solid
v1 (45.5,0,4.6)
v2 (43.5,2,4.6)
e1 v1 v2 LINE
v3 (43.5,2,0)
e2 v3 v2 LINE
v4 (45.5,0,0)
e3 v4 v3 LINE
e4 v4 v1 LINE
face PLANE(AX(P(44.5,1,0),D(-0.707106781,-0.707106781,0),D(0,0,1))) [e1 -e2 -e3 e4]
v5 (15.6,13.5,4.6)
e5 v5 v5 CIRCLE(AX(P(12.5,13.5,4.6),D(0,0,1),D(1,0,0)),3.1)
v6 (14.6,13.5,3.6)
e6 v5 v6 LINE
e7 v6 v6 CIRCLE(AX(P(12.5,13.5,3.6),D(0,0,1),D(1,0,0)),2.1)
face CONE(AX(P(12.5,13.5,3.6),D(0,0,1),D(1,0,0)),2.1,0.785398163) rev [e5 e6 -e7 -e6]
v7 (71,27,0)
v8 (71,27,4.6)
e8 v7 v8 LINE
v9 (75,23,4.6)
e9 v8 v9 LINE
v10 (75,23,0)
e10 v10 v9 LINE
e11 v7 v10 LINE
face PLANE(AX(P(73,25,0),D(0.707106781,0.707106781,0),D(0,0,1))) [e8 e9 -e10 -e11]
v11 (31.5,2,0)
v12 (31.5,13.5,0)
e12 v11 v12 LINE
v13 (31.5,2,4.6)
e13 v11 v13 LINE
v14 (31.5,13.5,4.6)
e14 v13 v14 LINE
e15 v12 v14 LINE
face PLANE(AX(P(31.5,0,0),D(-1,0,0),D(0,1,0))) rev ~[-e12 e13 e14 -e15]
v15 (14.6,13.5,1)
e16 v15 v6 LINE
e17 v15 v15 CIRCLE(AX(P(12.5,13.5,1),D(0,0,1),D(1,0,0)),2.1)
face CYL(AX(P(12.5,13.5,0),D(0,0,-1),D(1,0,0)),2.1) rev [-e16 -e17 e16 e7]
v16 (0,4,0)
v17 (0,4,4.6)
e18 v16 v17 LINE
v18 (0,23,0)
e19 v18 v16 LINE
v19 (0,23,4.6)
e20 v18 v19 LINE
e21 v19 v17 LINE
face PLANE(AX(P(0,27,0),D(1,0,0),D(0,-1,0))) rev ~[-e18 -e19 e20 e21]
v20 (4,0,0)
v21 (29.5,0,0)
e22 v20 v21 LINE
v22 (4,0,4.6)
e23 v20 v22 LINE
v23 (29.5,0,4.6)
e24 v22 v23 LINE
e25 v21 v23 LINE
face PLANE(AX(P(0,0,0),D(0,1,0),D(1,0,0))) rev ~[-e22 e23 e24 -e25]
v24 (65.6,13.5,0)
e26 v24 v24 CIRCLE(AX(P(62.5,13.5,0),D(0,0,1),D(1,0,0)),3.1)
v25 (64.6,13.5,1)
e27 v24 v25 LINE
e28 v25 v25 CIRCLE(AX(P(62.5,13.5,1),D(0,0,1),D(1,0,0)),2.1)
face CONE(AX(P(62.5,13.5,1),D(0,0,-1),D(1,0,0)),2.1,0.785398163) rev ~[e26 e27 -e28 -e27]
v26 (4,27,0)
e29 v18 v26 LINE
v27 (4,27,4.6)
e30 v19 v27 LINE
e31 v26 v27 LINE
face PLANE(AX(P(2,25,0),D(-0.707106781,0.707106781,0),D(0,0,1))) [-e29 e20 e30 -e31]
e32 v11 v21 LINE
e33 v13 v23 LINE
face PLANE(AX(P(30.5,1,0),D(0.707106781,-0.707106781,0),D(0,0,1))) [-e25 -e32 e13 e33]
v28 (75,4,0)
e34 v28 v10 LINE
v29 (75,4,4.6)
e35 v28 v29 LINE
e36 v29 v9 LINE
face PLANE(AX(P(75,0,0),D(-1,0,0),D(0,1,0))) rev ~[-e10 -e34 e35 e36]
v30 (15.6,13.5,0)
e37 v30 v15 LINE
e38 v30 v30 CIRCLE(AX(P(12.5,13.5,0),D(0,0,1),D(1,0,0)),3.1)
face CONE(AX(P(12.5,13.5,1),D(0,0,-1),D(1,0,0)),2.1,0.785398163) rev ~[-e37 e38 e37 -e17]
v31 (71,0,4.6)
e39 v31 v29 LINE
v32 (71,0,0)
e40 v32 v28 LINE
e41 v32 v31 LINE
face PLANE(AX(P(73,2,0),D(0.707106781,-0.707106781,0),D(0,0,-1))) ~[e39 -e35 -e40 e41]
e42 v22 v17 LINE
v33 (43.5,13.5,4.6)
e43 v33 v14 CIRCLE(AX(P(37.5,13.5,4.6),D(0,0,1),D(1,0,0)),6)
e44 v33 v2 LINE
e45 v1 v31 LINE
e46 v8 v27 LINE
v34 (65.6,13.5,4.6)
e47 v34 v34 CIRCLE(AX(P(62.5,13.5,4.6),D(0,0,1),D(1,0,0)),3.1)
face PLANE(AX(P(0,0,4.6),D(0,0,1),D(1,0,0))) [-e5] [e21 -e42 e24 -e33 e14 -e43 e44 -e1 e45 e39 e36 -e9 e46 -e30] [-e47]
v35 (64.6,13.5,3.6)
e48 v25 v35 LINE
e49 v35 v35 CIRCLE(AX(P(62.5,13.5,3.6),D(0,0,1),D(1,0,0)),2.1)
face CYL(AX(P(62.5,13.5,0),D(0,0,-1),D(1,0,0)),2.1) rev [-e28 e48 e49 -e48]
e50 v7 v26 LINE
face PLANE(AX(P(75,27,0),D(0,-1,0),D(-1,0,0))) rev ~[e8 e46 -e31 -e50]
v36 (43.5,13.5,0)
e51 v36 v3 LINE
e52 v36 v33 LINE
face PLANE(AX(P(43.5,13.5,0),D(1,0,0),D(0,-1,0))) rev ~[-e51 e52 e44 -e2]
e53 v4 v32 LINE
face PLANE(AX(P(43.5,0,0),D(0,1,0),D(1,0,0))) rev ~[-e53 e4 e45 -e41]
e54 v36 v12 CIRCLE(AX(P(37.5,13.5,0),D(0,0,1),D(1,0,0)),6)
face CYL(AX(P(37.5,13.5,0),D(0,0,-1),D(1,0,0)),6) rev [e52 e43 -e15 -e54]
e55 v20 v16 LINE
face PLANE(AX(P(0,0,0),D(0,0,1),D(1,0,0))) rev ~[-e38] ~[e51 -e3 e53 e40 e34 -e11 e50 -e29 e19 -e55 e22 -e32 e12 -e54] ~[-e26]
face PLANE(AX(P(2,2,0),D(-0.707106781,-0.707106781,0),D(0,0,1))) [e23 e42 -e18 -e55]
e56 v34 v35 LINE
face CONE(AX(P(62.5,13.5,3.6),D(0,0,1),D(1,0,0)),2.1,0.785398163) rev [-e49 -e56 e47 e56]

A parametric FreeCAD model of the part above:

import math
import FreeCAD as App
import Part
import Sketcher

V = App.Vector


def edges_at(feature, points):
    """Names of the edges that pass closest to the given points."""
    edges = feature.Shape.Edges
    near = lambda p: min(range(len(edges)), key=lambda i: edges[i].distToShape(Part.Vertex(*p))[0])
    return sorted({f"Edge{near(p) + 1}" for p in points})

doc = App.newDocument("Part")
body = doc.addObject("PartDesign::Body", "Body")

# Sketch on XY plane
sketch1 = doc.addObject("Sketcher::SketchObject", "Sketch")
body.addObject(sketch1)
sketch1.AttachmentSupport = (doc.XY_Plane, [""])
sketch1.MapMode = "FlatFace"
sketch1.addGeometry(Part.LineSegment(V(43.5, 0, 0), V(75, 0, 0)), False)
sketch1.addGeometry(Part.LineSegment(V(75, 0, 0), V(75, 27, 0)), False)
sketch1.addGeometry(Part.LineSegment(V(75, 27, 0), V(0, 27, 0)), False)
sketch1.addGeometry(Part.LineSegment(V(0, 27, 0), V(0, 0, 0)), False)
sketch1.addGeometry(Part.LineSegment(V(0, 0, 0), V(31.5, 0, 0)), False)
sketch1.addGeometry(Part.LineSegment(V(31.5, 0, 0), V(31.5, 13.5, 0)), False)
sketch1.addGeometry(Part.ArcOfCircle(Part.Circle(V(37.5, 13.5, 0), V(0, 0, 1), 6), math.radians(0), math.radians(180)), False)
sketch1.addGeometry(Part.LineSegment(V(43.5, 13.5, 0), V(43.5, 0, 0)), False)
sketch1.addGeometry(Part.Circle(V(12.5, 13.5, 0), V(0, 0, 1), 2.1), False)
sketch1.addGeometry(Part.Circle(V(62.5, 13.5, 0), V(0, 0, 1), 2.1), False)
sketch1.addConstraint(Sketcher.Constraint("Coincident", 0, 2, 1, 1))
sketch1.addConstraint(Sketcher.Constraint("Coincident", 1, 2, 2, 1))
sketch1.addConstraint(Sketcher.Constraint("Coincident", 2, 2, 3, 1))
sketch1.addConstraint(Sketcher.Constraint("Coincident", 3, 2, 4, 1))
sketch1.addConstraint(Sketcher.Constraint("Coincident", 4, 2, 5, 1))
sketch1.addConstraint(Sketcher.Constraint("Tangent", 5, 2, 6, 2))
sketch1.addConstraint(Sketcher.Constraint("Tangent", 6, 1, 7, 1))
sketch1.addConstraint(Sketcher.Constraint("Coincident", 7, 2, 0, 1))
sketch1.addConstraint(Sketcher.Constraint("Horizontal", 0))
sketch1.addConstraint(Sketcher.Constraint("Vertical", 1))
sketch1.addConstraint(Sketcher.Constraint("Horizontal", 2))
sketch1.addConstraint(Sketcher.Constraint("Vertical", 3))
sketch1.addConstraint(Sketcher.Constraint("Horizontal", 4))
sketch1.addConstraint(Sketcher.Constraint("Vertical", 5))
sketch1.addConstraint(Sketcher.Constraint("Vertical", 7))
sketch1.addConstraint(Sketcher.Constraint("Coincident", 3, 2, -1, 1))
sketch1.addConstraint(Sketcher.Constraint("Equal", 8, 9))
sketch1.addConstraint(Sketcher.Constraint("PointOnObject", 0, 2, -1))
sketch1.addConstraint(Sketcher.Constraint("Horizontal", 6, 3, 8, 3))
sketch1.addConstraint(Sketcher.Constraint("Horizontal", 8, 3, 9, 3))
sketch1.addConstraint(Sketcher.Constraint("Equal", 0, 4))
sketch1.addConstraint(Sketcher.Constraint("Radius", 6, 6.0))
sketch1.addConstraint(Sketcher.Constraint("Diameter", 8, 4.2))
sketch1.addConstraint(Sketcher.Constraint("DistanceX", 2, 2, 2, 1, 75.0))
sketch1.addConstraint(Sketcher.Constraint("DistanceY", 5, 1, 5, 2, 13.5))
sketch1.addConstraint(Sketcher.Constraint("DistanceX", 8, 3, 6, 3, 25.0))
sketch1.addConstraint(Sketcher.Constraint("DistanceX", 6, 3, 9, 3, 25.0))
sketch1.addConstraint(Sketcher.Constraint("DistanceY", 9, 3, 1, 2, 13.5))
pad1 = doc.addObject("PartDesign::Pad", "Pad")
body.addObject(pad1)
pad1.Profile = sketch1
pad1.Length = 4.6
doc.recompute()

chamfer = doc.addObject("PartDesign::Chamfer", "Chamfer")
body.addObject(chamfer)
chamfer.Base = (pad1, edges_at(pad1, [
    (0, 27, 2.3),
    (0, 0, 2.3),
    (75, 0, 2.3),
    (75, 27, 2.3),
]))
chamfer.Size = 4
doc.recompute()

chamfer2 = doc.addObject("PartDesign::Chamfer", "Chamfer001")
body.addObject(chamfer2)
chamfer2.Base = (chamfer, edges_at(chamfer, [(31.5, 0, 2.3), (43.5, 0, 2.3)]))
chamfer2.Size = 2
doc.recompute()

chamfer3 = doc.addObject("PartDesign::Chamfer", "Chamfer002")
body.addObject(chamfer3)
chamfer3.Base = (chamfer2, edges_at(chamfer2, [
    (10.4, 13.5, 4.6),
    (10.4, 13.5, 0),
    (60.4, 13.5, 0),
    (60.4, 13.5, 4.6),
]))
chamfer3.Size = 1

doc.recompute()
